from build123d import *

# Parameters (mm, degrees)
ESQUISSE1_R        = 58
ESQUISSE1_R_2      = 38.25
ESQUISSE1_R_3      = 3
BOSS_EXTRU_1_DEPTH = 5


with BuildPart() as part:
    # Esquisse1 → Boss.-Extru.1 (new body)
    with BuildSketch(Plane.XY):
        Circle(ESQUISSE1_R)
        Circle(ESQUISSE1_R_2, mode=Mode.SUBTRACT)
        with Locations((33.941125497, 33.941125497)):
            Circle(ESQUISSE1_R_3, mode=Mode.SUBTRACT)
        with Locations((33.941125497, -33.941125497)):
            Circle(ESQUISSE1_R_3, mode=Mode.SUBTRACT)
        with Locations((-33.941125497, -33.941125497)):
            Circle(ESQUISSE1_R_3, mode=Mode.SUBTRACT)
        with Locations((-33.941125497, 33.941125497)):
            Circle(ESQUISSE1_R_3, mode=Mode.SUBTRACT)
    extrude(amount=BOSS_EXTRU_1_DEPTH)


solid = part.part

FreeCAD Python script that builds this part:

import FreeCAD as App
import Part
import Sketcher
from FreeCAD import Vector

doc = App.newDocument("Part")
body = doc.addObject("PartDesign::Body", "Body")

sketch1 = doc.addObject("Sketcher::SketchObject", "Sketch")
body.addObject(sketch1)
sketch1.AttachmentSupport = (doc.XY_Plane, [""])
sketch1.MapMode = "FlatFace"
sketch1.addGeometry(Part.Circle(Vector(0, 0, 0), Vector(0, 0, 1), 58), False)
sketch1.addGeometry(Part.Circle(Vector(-33.9, -33.9, 0), Vector(0, 0, 1), 3), False)
sketch1.addGeometry(Part.Circle(Vector(33.9, -33.9, 0), Vector(0, 0, 1), 3), False)
sketch1.addGeometry(Part.Circle(Vector(-33.9, 33.9, 0), Vector(0, 0, 1), 3), False)
sketch1.addGeometry(Part.Circle(Vector(0, 0, 0), Vector(0, 0, 1), 38.2), False)
sketch1.addGeometry(Part.Circle(Vector(33.9, 33.9, 0), Vector(0, 0, 1), 3), False)
sketch1.addConstraint(Sketcher.Constraint("Coincident", 0, 3, -1, 1))
sketch1.addConstraint(Sketcher.Constraint("Coincident", 4, 3, -1, 1))
sketch1.addConstraint(Sketcher.Constraint("Equal", 1, 2))
sketch1.addConstraint(Sketcher.Constraint("Equal", 2, 3))
sketch1.addConstraint(Sketcher.Constraint("Equal", 3, 5))
sketch1.addConstraint(Sketcher.Constraint("Symmetric", 2, 3, 3, 3, -1, 1))
sketch1.addConstraint(Sketcher.Constraint("Symmetric", 1, 3, 5, 3, -1, 1))
sketch1.addConstraint(Sketcher.Constraint("Symmetric", 1, 3, 2, 3, -2))
sketch1.addConstraint(Sketcher.Constraint("Diameter", 0, 116.0))
sketch1.addConstraint(Sketcher.Constraint("Diameter", 1, 6.0))
sketch1.addConstraint(Sketcher.Constraint("Diameter", 4, 76.5))
sketch1.addConstraint(Sketcher.Constraint("DistanceX", 1, 3, 2, 3, 67.882251))
sketch1.addConstraint(Sketcher.Constraint("DistanceY", 1, 3, 3, 3, 67.882251))
pad1 = doc.addObject("PartDesign::Pad", "Pad")
body.addObject(pad1)
pad1.Profile = sketch1
pad1.Length = 5

doc.recompute()
